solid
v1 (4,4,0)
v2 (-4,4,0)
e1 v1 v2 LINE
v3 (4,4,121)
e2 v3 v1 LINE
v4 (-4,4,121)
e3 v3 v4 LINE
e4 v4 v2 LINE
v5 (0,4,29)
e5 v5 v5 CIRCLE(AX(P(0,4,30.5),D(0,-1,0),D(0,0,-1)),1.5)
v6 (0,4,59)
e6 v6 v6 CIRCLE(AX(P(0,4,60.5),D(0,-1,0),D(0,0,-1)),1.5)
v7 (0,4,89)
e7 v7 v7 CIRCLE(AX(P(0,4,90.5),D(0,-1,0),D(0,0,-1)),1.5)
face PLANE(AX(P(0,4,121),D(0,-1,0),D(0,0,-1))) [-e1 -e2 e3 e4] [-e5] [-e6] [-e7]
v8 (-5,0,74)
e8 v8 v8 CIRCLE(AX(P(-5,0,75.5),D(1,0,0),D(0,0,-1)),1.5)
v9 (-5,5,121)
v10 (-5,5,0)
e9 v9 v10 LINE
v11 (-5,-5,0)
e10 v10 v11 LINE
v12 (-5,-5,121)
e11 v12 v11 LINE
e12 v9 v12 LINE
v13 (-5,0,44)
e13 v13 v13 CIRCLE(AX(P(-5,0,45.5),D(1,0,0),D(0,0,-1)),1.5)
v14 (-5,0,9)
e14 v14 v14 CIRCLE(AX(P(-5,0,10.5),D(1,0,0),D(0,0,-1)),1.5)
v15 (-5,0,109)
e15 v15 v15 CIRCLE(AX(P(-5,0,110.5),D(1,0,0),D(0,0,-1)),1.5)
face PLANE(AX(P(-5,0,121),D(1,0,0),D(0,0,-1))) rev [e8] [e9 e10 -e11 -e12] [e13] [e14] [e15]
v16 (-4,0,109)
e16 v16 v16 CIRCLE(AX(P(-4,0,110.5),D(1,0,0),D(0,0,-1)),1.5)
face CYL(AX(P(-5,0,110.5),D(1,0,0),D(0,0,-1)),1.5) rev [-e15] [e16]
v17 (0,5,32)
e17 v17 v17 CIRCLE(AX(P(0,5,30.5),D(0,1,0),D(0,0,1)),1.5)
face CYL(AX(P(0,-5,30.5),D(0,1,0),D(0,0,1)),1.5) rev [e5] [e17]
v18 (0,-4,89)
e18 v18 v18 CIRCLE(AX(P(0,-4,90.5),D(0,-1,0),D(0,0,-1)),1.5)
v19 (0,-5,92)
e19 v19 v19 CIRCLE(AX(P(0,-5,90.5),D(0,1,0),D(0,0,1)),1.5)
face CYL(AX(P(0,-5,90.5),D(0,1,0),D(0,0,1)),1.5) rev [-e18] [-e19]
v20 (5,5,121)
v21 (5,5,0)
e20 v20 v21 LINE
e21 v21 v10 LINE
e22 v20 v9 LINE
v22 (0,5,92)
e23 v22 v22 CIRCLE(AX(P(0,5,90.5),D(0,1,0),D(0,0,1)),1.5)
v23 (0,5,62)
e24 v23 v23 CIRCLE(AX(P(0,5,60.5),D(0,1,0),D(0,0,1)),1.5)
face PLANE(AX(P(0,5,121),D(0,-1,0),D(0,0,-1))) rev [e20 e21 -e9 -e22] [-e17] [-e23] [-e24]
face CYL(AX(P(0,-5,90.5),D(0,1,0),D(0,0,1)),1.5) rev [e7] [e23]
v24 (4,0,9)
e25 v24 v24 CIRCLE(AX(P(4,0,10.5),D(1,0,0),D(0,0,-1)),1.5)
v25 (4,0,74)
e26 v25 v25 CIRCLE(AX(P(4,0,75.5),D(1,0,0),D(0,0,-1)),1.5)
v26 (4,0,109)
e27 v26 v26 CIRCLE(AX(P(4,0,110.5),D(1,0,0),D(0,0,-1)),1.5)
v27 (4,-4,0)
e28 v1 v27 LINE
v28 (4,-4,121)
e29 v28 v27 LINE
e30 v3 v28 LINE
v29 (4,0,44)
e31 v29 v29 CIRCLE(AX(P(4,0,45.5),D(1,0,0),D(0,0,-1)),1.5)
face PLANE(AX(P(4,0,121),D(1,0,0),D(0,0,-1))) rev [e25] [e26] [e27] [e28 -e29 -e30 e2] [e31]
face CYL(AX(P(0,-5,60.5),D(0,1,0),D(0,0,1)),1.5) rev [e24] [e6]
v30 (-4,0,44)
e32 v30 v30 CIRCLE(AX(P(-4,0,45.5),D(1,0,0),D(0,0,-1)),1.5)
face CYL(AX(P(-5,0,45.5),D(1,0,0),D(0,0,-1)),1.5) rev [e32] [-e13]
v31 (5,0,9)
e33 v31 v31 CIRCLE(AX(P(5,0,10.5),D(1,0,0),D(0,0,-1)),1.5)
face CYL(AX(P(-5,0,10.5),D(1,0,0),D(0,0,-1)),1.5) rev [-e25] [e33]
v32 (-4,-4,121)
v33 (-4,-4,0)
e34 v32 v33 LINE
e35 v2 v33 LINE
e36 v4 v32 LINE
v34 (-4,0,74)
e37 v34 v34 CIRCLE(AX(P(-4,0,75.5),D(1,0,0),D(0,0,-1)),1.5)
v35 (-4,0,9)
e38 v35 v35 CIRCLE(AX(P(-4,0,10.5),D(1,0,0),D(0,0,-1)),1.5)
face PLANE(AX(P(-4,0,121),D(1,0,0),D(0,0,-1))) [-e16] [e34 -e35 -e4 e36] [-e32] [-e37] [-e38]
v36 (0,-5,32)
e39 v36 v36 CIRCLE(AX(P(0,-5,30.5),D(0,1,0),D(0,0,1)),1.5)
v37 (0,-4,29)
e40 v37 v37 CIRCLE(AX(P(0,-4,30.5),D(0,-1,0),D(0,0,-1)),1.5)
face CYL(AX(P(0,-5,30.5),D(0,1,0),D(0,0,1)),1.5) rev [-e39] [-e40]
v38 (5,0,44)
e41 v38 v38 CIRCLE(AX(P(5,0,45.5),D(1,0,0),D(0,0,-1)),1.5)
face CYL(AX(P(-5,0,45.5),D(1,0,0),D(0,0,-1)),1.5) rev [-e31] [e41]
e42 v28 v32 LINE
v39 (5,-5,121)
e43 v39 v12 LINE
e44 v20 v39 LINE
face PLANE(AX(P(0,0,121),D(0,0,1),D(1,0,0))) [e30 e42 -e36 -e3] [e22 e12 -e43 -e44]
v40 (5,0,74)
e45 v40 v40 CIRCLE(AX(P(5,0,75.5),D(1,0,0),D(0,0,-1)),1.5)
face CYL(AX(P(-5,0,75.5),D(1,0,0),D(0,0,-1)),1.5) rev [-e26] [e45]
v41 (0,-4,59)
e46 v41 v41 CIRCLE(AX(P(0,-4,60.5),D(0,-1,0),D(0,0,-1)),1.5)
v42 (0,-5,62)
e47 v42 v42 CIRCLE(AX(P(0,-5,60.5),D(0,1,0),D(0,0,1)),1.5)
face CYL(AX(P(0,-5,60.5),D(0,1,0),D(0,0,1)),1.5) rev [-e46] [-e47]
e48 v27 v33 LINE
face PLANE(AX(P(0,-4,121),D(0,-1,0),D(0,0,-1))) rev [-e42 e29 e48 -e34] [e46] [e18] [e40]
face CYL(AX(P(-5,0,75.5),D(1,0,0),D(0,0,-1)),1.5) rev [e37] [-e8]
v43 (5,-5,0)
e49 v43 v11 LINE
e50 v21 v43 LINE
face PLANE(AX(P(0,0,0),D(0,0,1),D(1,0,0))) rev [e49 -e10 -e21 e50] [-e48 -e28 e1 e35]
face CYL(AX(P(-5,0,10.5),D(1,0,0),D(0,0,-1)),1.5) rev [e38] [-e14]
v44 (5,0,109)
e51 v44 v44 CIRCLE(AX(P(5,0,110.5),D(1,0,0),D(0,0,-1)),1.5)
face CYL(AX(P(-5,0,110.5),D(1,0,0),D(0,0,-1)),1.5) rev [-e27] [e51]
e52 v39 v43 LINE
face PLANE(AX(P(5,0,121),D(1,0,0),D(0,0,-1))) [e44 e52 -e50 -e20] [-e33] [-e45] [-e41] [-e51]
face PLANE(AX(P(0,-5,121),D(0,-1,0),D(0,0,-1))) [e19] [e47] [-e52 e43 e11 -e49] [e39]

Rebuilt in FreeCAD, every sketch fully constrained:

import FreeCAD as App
import Part
import Sketcher
from FreeCAD import Vector

doc = App.newDocument("Part")
params = doc.addObject("Spreadsheet::Sheet", "Params")
for row, (alias, value) in enumerate([
    ("sketch1_width", "10 mm"),
    ("sketch1_width2", "8 mm"),
    ("pad1_length", "121 mm"),
    ("sketch2_diameter", "3 mm"),
    ("sketch3_diameter", "3 mm"),
], start=1):
    params.set(f"A{row}", alias)
    params.set(f"B{row}", "=" + value)
    params.setAlias(f"B{row}", alias)

body = doc.addObject("PartDesign::Body", "Body")

# Sketch on XY plane
sketch1 = doc.addObject("Sketcher::SketchObject", "Sketch")
body.addObject(sketch1)
sketch1.AttachmentSupport = (doc.XY_Plane, [""])
sketch1.MapMode = "FlatFace"
sketch1.addGeometry(Part.LineSegment(Vector(-5, 5, 0), Vector(-5, -5, 0)), False)
sketch1.addGeometry(Part.LineSegment(Vector(-5, -5, 0), Vector(5, -5, 0)), False)
sketch1.addGeometry(Part.LineSegment(Vector(5, -5, 0), Vector(5, 5, 0)), False)
sketch1.addGeometry(Part.LineSegment(Vector(5, 5, 0), Vector(-5, 5, 0)), False)
sketch1.addGeometry(Part.LineSegment(Vector(4, -4, 0), Vector(-4, -4, 0)), False)
sketch1.addGeometry(Part.LineSegment(Vector(-4, -4, 0), Vector(-4, 4, 0)), False)
sketch1.addGeometry(Part.LineSegment(Vector(-4, 4, 0), Vector(4, 4, 0)), False)
sketch1.addGeometry(Part.LineSegment(Vector(4, 4, 0), Vector(4, -4, 0)), False)
sketch1.addConstraint(Sketcher.Constraint("Coincident", 0, 2, 1, 1))
sketch1.addConstraint(Sketcher.Constraint("Coincident", 1, 2, 2, 1))
sketch1.addConstraint(Sketcher.Constraint("Coincident", 2, 2, 3, 1))
sketch1.addConstraint(Sketcher.Constraint("Coincident", 3, 2, 0, 1))
sketch1.addConstraint(Sketcher.Constraint("Coincident", 4, 2, 5, 1))
sketch1.addConstraint(Sketcher.Constraint("Coincident", 5, 2, 6, 1))
sketch1.addConstraint(Sketcher.Constraint("Coincident", 6, 2, 7, 1))
sketch1.addConstraint(Sketcher.Constraint("Coincident", 7, 2, 4, 1))
sketch1.addConstraint(Sketcher.Constraint("Vertical", 0))
sketch1.addConstraint(Sketcher.Constraint("Horizontal", 1))
sketch1.addConstraint(Sketcher.Constraint("Vertical", 2))
sketch1.addConstraint(Sketcher.Constraint("Horizontal", 3))
sketch1.addConstraint(Sketcher.Constraint("Horizontal", 4))
sketch1.addConstraint(Sketcher.Constraint("Vertical", 5))
sketch1.addConstraint(Sketcher.Constraint("Horizontal", 6))
sketch1.addConstraint(Sketcher.Constraint("Vertical", 7))
sketch1.addConstraint(Sketcher.Constraint("Symmetric", 0, 2, 2, 2, -1, 1))
sketch1.addConstraint(Sketcher.Constraint("Symmetric", 4, 2, 6, 2, -1, 1))
sketch1.addConstraint(Sketcher.Constraint("Equal", 3, 0))
sketch1.addConstraint(Sketcher.Constraint("Equal", 6, 5))
sketch1.addConstraint(Sketcher.Constraint("DistanceX", 1, 1, 1, 2, 10.0))
sketch1.addConstraint(Sketcher.Constraint("DistanceX", 4, 2, 4, 1, 8.0))
sketch1.setExpression("Constraints[20]", "Params.sketch1_width")
sketch1.setExpression("Constraints[21]", "Params.sketch1_width2")
pad1 = doc.addObject("PartDesign::Pad", "Pad")
body.addObject(pad1)
pad1.Profile = sketch1
pad1.setExpression("Length", "Params.pad1_length")

# Sketch on YZ plane
sketch2 = doc.addObject("Sketcher::SketchObject", "Sketch001")
body.addObject(sketch2)
sketch2.AttachmentSupport = (doc.YZ_Plane, [""])
sketch2.MapMode = "FlatFace"
sketch2.AttachmentOffset = App.Placement(Vector(0, 0, 5), App.Rotation())
sketch2.addGeometry(Part.Circle(Vector(0, 110.5, 0), Vector(0, 0, 1), 1.5), False)
sketch2.addGeometry(Part.Circle(Vector(0, 75.5, 0), Vector(0, 0, 1), 1.5), False)
sketch2.addGeometry(Part.Circle(Vector(0, 45.5, 0), Vector(0, 0, 1), 1.5), False)
sketch2.addGeometry(Part.Circle(Vector(0, 10.5, 0), Vector(0, 0, 1), 1.5), False)
sketch2.addConstraint(Sketcher.Constraint("Equal", 0, 1))
sketch2.addConstraint(Sketcher.Constraint("Equal", 1, 2))
sketch2.addConstraint(Sketcher.Constraint("Equal", 2, 3))
sketch2.addConstraint(Sketcher.Constraint("PointOnObject", 0, 3, -2))
sketch2.addConstraint(Sketcher.Constraint("PointOnObject", 1, 3, -2))
sketch2.addConstraint(Sketcher.Constraint("PointOnObject", 2, 3, -2))
sketch2.addConstraint(Sketcher.Constraint("PointOnObject", 3, 3, -2))
sketch2.addConstraint(Sketcher.Constraint("Diameter", 0, 3.0))
sketch2.addConstraint(Sketcher.Constraint("DistanceY", 1, 3, 0, 3, 35.0))
sketch2.addConstraint(Sketcher.Constraint("DistanceY", 2, 3, 1, 3, 30.0))
sketch2.addConstraint(Sketcher.Constraint("DistanceY", 3, 3, 2, 3, 35.0))
sketch2.addConstraint(Sketcher.Constraint("DistanceY", -1, 1, 0, 3, 110.5))
sketch2.setExpression("Constraints[7]", "Params.sketch2_diameter")
pocket1 = doc.addObject("PartDesign::Pocket", "Pocket")
body.addObject(pocket1)
pocket1.Profile = sketch2
pocket1.Type = "ThroughAll"

# Sketch on XZ plane
sketch3 = doc.addObject("Sketcher::SketchObject", "Sketch002")
body.addObject(sketch3)
sketch3.AttachmentSupport = (doc.XZ_Plane, [""])
sketch3.MapMode = "FlatFace"
sketch3.AttachmentOffset = App.Placement(Vector(0, 0, -5), App.Rotation())
sketch3.addGeometry(Part.Circle(Vector(0, 60.5, 0), Vector(0, 0, 1), 1.5), False)
sketch3.addGeometry(Part.Circle(Vector(0, 30.5, 0), Vector(0, 0, 1), 1.5), False)
sketch3.addGeometry(Part.Circle(Vector(0, 90.5, 0), Vector(0, 0, 1), 1.5), False)
sketch3.addConstraint(Sketcher.Constraint("Equal", 0, 1))
sketch3.addConstraint(Sketcher.Constraint("Equal", 1, 2))
sketch3.addConstraint(Sketcher.Constraint("PointOnObject", 0, 3, -2))
sketch3.addConstraint(Sketcher.Constraint("PointOnObject", 1, 3, -2))
sketch3.addConstraint(Sketcher.Constraint("PointOnObject", 2, 3, -2))
sketch3.addConstraint(Sketcher.Constraint("Diameter", 0, 3.0))
sketch3.addConstraint(Sketcher.Constraint("DistanceY", 1, 3, 0, 3, 30.0))
sketch3.addConstraint(Sketcher.Constraint("DistanceY", 0, 3, 2, 3, 30.0))
sketch3.addConstraint(Sketcher.Constraint("DistanceY", -1, 1, 0, 3, 60.5))
sketch3.setExpression("Constraints[5]", "Params.sketch3_diameter")
pocket2 = doc.addObject("PartDesign::Pocket", "Pocket001")
body.addObject(pocket2)
pocket2.Profile = sketch3
pocket2.Type = "ThroughAll"
pocket2.Reversed = True

doc.recompute()
